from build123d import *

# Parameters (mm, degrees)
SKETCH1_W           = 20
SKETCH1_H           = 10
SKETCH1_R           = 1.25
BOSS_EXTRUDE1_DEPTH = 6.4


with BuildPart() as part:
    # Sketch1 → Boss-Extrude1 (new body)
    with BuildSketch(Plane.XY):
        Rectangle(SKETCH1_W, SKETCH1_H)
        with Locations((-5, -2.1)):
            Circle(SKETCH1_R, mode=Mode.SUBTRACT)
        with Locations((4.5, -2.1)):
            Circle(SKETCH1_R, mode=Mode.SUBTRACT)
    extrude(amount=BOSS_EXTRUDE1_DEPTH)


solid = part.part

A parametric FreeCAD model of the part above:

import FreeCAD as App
import Part
import Sketcher
Q = App.Units.Quantity

doc = App.newDocument("Part")
body = doc.addObject("PartDesign::Body", "Body")

sketch1 = doc.addObject("Sketcher::SketchObject", "Sketch")
body.addObject(sketch1)
sketch1.AttachmentSupport = (doc.XY_Plane, [""])
sketch1.MapMode = "FlatFace"
sketch1.addGeometry(Part.LineSegment(App.Vector(-10, 5, 0), App.Vector(-10, -5, 0)), False)
sketch1.addGeometry(Part.LineSegment(App.Vector(-10, -5, 0), App.Vector(10, -5, 0)), False)
sketch1.addGeometry(Part.LineSegment(App.Vector(10, -5, 0), App.Vector(10, 5, 0)), False)
sketch1.addGeometry(Part.LineSegment(App.Vector(10, 5, 0), App.Vector(-10, 5, 0)), False)
sketch1.addGeometry(Part.Circle(App.Vector(-5, -2.1, 0), App.Vector(0, 0, 1), 1.25), False)
sketch1.addGeometry(Part.Circle(App.Vector(4.5, -2.1, 0), App.Vector(0, 0, 1), 1.25), False)
sketch1.addConstraint(Sketcher.Constraint("Coincident", 0, 2, 1, 1))
sketch1.addConstraint(Sketcher.Constraint("Coincident", 1, 2, 2, 1))
sketch1.addConstraint(Sketcher.Constraint("Coincident", 2, 2, 3, 1))
sketch1.addConstraint(Sketcher.Constraint("Coincident", 3, 2, 0, 1))
sketch1.addConstraint(Sketcher.Constraint("Vertical", 0))
sketch1.addConstraint(Sketcher.Constraint("Horizontal", 1))
sketch1.addConstraint(Sketcher.Constraint("Vertical", 2))
sketch1.addConstraint(Sketcher.Constraint("Horizontal", 3))
sketch1.addConstraint(Sketcher.Constraint("Equal", 4, 5))
sketch1.addConstraint(Sketcher.Constraint("Symmetric", 0, 2, 2, 2, -1, 1))
sketch1.addConstraint(Sketcher.Constraint("Horizontal", 4, 3, 5, 3))
sketch1.addConstraint(Sketcher.Constraint("Diameter", 4, Q("2.5 mm")))
sketch1.addConstraint(Sketcher.Constraint("DistanceX", 1, 1, 1, 2, Q("20 mm")))
sketch1.addConstraint(Sketcher.Constraint("DistanceY", 0, 2, 0, 1, Q("10 mm")))
sketch1.addConstraint(Sketcher.Constraint("DistanceX", 4, 3, -1, 1, Q("5 mm")))
sketch1.addConstraint(Sketcher.Constraint("DistanceY", 4, 3, -1, 1, Q("2.1 mm")))
sketch1.addConstraint(Sketcher.Constraint("DistanceX", -1, 1, 5, 3, Q("4.5 mm")))
pad1 = doc.addObject("PartDesign::Pad", "Pad")
body.addObject(pad1)
pad1.Profile = sketch1
pad1.Length = 6.4

doc.recompute()
